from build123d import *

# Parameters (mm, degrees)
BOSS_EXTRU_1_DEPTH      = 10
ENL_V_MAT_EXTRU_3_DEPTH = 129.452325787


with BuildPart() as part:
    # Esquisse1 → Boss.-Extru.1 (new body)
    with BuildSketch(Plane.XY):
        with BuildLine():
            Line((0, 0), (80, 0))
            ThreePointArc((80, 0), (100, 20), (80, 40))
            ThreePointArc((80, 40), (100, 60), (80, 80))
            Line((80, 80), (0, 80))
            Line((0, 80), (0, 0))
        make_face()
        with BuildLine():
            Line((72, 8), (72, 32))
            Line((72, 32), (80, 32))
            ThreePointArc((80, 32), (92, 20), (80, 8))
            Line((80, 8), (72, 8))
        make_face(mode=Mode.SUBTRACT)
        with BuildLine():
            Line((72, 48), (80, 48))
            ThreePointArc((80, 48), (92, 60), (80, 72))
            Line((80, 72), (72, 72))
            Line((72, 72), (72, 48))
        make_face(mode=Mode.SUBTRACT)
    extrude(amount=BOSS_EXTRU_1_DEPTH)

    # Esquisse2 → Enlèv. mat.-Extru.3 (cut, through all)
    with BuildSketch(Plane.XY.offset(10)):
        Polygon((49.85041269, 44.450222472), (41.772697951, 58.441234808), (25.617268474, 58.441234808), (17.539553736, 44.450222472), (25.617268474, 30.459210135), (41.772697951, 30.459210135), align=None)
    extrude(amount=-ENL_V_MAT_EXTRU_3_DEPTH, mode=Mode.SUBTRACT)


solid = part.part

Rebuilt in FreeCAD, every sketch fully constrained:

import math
import FreeCAD as App
import Part
import Sketcher
from FreeCAD import Vector
Q = App.Units.Quantity

doc = App.newDocument("Part")
params = doc.addObject("Spreadsheet::Sheet", "Params")
for row, (alias, value) in enumerate([
    ("sketch1_radius", "20 mm"),
    ("sketch1_radius2", "12 mm"),
    ("sketch1_width", "8 mm"),
    ("pad1_length", "10 mm"),
], start=1):
    params.set(f"A{row}", alias)
    params.set(f"B{row}", "=" + value)
    params.setAlias(f"B{row}", alias)

body = doc.addObject("PartDesign::Body", "Body")

# Sketch on XY plane
sketch1 = body.newObject("Sketcher::SketchObject", "Sketch")
sketch1.AttachmentSupport = (doc.getObject("XY_Plane"), [""])
sketch1.MapMode = "FlatFace"
sketch1.addGeometry([
    Part.LineSegment(Vector(0, 0, 0), Vector(80, 0, 0)),  # 0
    Part.ArcOfCircle(Part.Circle(Vector(80, 20, 0), Vector(0, 0, 1), 20), math.radians(-90), math.radians(90)),  # 1
    Part.ArcOfCircle(Part.Circle(Vector(80, 60, 0), Vector(0, 0, 1), 20), math.radians(-90), math.radians(90)),  # 2
    Part.LineSegment(Vector(80, 80, 0), Vector(0, 80, 0)),  # 3
    Part.LineSegment(Vector(0, 80, 0), Vector(0, 0, 0)),  # 4
    Part.LineSegment(Vector(80, 8, 0), Vector(72, 8, 0)),  # 5
    Part.LineSegment(Vector(72, 8, 0), Vector(72, 32, 0)),  # 6
    Part.LineSegment(Vector(72, 32, 0), Vector(80, 32, 0)),  # 7
    Part.ArcOfCircle(Part.Circle(Vector(80, 20, 0), Vector(0, 0, 1), 12), math.radians(-90), math.radians(90)),  # 8
    Part.LineSegment(Vector(80, 48, 0), Vector(72, 48, 0)),  # 9
    Part.LineSegment(Vector(72, 48, 0), Vector(72, 72, 0)),  # 10
    Part.LineSegment(Vector(72, 72, 0), Vector(80, 72, 0)),  # 11
    Part.ArcOfCircle(Part.Circle(Vector(80, 60, 0), Vector(0, 0, 1), 12), math.radians(-90), math.radians(90)),  # 12
], False)
sketch1.addConstraint([
    Sketcher.Constraint("Tangent", 0, 2, 1, 1),
    Sketcher.Constraint("Tangent", 1, 2, 2, 1),
    Sketcher.Constraint("Tangent", 2, 2, 3, 1),
    Sketcher.Constraint("Coincident", 3, 2, 4, 1),
    Sketcher.Constraint("Coincident", 4, 2, 0, 1),
    Sketcher.Constraint("Coincident", 5, 2, 6, 1),
    Sketcher.Constraint("Coincident", 6, 2, 7, 1),
    Sketcher.Constraint("Tangent", 7, 2, 8, 2),
    Sketcher.Constraint("Tangent", 8, 1, 5, 1),
    Sketcher.Constraint("Coincident", 9, 2, 10, 1),
    Sketcher.Constraint("Coincident", 10, 2, 11, 1),
    Sketcher.Constraint("Tangent", 11, 2, 12, 2),
    Sketcher.Constraint("Tangent", 12, 1, 9, 1),
    Sketcher.Constraint("Horizontal", 0),
    Sketcher.Constraint("Horizontal", 3),
    Sketcher.Constraint("Vertical", 4),
    Sketcher.Constraint("Horizontal", 5),
    Sketcher.Constraint("Vertical", 6),
    Sketcher.Constraint("Horizontal", 7),
    Sketcher.Constraint("Horizontal", 9),
    Sketcher.Constraint("Vertical", 10),
    Sketcher.Constraint("Horizontal", 11),
    Sketcher.Constraint("Coincident", 4, 2, -1, 1),
    Sketcher.Constraint("Coincident", 8, 3, 1, 3),
    Sketcher.Constraint("Coincident", 12, 3, 2, 3),
    Sketcher.Constraint("Equal", 1, 2),
    Sketcher.Constraint("Equal", 8, 12),
    Sketcher.Constraint("Vertical", 1, 3, 2, 3),
    Sketcher.Constraint("Vertical", 6, 2, 9, 2),
    Sketcher.Constraint("Equal", 3, 4),
    Sketcher.Constraint("Radius", 1, Q("20 mm")),
    Sketcher.Constraint("Radius", 8, Q("12 mm")),
    Sketcher.Constraint("DistanceX", 5, 2, 5, 1, Q("8 mm")),
])
sketch1.setExpression("Constraints[30]", "Params.sketch1_radius")
sketch1.setExpression("Constraints[31]", "Params.sketch1_radius2")
sketch1.setExpression("Constraints[32]", "Params.sketch1_width")
pad1 = body.newObject("PartDesign::Pad", "Pad")
pad1.Profile = sketch1
pad1.setExpression("Length", "Params.pad1_length")

# Sketch on XY plane
sketch2 = body.newObject("Sketcher::SketchObject", "Sketch001")
sketch2.AttachmentSupport = (doc.getObject("XY_Plane"), [""])
sketch2.MapMode = "FlatFace"
sketch2.AttachmentOffset = App.Placement(Vector(0, 0, 10), App.Rotation())
sketch2.addGeometry([
    Part.LineSegment(Vector(50, 44, 0), Vector(42, 58, 0)),  # 0
    Part.LineSegment(Vector(42, 58, 0), Vector(26, 58, 0)),  # 1
    Part.LineSegment(Vector(26, 58, 0), Vector(18, 44, 0)),  # 2
    Part.LineSegment(Vector(18, 44, 0), Vector(26, 30, 0)),  # 3
    Part.LineSegment(Vector(26, 30, 0), Vector(42, 30, 0)),  # 4
    Part.LineSegment(Vector(42, 30, 0), Vector(50, 44, 0)),  # 5
], False)
sketch2.addConstraint([
    Sketcher.Constraint("Coincident", 0, 2, 1, 1),
    Sketcher.Constraint("Coincident", 1, 2, 2, 1),
    Sketcher.Constraint("Coincident", 2, 2, 3, 1),
    Sketcher.Constraint("Coincident", 3, 2, 4, 1),
    Sketcher.Constraint("Coincident", 4, 2, 5, 1),
    Sketcher.Constraint("Coincident", 5, 2, 0, 1),
    Sketcher.Constraint("Horizontal", 1),
    Sketcher.Constraint("Horizontal", 4),
    Sketcher.Constraint("Parallel", 0, 3),
    Sketcher.Constraint("Parallel", 2, 5),
    Sketcher.Constraint("Horizontal", 2, 2, 5, 2),
    Sketcher.Constraint("Vertical", 1, 2, 3, 2),
    Sketcher.Constraint("Vertical", 0, 2, 4, 2),
    Sketcher.Constraint("Angle", 0, Q("120 deg")),
    Sketcher.Constraint("DistanceX", 1, 2, 1, 1, Q("16.155429 mm")),
    Sketcher.Constraint("Distance", 0, Q("16.155429 mm")),
    Sketcher.Constraint("DistanceX", -1, 1, 1, 2, Q("25.617268 mm")),
    Sketcher.Constraint("DistanceY", -1, 1, 3, 2, Q("30.45921 mm")),
])
pocket1 = body.newObject("PartDesign::Pocket", "Pocket")
pocket1.Profile = sketch2
pocket1.Type = "ThroughAll"

doc.recompute()
